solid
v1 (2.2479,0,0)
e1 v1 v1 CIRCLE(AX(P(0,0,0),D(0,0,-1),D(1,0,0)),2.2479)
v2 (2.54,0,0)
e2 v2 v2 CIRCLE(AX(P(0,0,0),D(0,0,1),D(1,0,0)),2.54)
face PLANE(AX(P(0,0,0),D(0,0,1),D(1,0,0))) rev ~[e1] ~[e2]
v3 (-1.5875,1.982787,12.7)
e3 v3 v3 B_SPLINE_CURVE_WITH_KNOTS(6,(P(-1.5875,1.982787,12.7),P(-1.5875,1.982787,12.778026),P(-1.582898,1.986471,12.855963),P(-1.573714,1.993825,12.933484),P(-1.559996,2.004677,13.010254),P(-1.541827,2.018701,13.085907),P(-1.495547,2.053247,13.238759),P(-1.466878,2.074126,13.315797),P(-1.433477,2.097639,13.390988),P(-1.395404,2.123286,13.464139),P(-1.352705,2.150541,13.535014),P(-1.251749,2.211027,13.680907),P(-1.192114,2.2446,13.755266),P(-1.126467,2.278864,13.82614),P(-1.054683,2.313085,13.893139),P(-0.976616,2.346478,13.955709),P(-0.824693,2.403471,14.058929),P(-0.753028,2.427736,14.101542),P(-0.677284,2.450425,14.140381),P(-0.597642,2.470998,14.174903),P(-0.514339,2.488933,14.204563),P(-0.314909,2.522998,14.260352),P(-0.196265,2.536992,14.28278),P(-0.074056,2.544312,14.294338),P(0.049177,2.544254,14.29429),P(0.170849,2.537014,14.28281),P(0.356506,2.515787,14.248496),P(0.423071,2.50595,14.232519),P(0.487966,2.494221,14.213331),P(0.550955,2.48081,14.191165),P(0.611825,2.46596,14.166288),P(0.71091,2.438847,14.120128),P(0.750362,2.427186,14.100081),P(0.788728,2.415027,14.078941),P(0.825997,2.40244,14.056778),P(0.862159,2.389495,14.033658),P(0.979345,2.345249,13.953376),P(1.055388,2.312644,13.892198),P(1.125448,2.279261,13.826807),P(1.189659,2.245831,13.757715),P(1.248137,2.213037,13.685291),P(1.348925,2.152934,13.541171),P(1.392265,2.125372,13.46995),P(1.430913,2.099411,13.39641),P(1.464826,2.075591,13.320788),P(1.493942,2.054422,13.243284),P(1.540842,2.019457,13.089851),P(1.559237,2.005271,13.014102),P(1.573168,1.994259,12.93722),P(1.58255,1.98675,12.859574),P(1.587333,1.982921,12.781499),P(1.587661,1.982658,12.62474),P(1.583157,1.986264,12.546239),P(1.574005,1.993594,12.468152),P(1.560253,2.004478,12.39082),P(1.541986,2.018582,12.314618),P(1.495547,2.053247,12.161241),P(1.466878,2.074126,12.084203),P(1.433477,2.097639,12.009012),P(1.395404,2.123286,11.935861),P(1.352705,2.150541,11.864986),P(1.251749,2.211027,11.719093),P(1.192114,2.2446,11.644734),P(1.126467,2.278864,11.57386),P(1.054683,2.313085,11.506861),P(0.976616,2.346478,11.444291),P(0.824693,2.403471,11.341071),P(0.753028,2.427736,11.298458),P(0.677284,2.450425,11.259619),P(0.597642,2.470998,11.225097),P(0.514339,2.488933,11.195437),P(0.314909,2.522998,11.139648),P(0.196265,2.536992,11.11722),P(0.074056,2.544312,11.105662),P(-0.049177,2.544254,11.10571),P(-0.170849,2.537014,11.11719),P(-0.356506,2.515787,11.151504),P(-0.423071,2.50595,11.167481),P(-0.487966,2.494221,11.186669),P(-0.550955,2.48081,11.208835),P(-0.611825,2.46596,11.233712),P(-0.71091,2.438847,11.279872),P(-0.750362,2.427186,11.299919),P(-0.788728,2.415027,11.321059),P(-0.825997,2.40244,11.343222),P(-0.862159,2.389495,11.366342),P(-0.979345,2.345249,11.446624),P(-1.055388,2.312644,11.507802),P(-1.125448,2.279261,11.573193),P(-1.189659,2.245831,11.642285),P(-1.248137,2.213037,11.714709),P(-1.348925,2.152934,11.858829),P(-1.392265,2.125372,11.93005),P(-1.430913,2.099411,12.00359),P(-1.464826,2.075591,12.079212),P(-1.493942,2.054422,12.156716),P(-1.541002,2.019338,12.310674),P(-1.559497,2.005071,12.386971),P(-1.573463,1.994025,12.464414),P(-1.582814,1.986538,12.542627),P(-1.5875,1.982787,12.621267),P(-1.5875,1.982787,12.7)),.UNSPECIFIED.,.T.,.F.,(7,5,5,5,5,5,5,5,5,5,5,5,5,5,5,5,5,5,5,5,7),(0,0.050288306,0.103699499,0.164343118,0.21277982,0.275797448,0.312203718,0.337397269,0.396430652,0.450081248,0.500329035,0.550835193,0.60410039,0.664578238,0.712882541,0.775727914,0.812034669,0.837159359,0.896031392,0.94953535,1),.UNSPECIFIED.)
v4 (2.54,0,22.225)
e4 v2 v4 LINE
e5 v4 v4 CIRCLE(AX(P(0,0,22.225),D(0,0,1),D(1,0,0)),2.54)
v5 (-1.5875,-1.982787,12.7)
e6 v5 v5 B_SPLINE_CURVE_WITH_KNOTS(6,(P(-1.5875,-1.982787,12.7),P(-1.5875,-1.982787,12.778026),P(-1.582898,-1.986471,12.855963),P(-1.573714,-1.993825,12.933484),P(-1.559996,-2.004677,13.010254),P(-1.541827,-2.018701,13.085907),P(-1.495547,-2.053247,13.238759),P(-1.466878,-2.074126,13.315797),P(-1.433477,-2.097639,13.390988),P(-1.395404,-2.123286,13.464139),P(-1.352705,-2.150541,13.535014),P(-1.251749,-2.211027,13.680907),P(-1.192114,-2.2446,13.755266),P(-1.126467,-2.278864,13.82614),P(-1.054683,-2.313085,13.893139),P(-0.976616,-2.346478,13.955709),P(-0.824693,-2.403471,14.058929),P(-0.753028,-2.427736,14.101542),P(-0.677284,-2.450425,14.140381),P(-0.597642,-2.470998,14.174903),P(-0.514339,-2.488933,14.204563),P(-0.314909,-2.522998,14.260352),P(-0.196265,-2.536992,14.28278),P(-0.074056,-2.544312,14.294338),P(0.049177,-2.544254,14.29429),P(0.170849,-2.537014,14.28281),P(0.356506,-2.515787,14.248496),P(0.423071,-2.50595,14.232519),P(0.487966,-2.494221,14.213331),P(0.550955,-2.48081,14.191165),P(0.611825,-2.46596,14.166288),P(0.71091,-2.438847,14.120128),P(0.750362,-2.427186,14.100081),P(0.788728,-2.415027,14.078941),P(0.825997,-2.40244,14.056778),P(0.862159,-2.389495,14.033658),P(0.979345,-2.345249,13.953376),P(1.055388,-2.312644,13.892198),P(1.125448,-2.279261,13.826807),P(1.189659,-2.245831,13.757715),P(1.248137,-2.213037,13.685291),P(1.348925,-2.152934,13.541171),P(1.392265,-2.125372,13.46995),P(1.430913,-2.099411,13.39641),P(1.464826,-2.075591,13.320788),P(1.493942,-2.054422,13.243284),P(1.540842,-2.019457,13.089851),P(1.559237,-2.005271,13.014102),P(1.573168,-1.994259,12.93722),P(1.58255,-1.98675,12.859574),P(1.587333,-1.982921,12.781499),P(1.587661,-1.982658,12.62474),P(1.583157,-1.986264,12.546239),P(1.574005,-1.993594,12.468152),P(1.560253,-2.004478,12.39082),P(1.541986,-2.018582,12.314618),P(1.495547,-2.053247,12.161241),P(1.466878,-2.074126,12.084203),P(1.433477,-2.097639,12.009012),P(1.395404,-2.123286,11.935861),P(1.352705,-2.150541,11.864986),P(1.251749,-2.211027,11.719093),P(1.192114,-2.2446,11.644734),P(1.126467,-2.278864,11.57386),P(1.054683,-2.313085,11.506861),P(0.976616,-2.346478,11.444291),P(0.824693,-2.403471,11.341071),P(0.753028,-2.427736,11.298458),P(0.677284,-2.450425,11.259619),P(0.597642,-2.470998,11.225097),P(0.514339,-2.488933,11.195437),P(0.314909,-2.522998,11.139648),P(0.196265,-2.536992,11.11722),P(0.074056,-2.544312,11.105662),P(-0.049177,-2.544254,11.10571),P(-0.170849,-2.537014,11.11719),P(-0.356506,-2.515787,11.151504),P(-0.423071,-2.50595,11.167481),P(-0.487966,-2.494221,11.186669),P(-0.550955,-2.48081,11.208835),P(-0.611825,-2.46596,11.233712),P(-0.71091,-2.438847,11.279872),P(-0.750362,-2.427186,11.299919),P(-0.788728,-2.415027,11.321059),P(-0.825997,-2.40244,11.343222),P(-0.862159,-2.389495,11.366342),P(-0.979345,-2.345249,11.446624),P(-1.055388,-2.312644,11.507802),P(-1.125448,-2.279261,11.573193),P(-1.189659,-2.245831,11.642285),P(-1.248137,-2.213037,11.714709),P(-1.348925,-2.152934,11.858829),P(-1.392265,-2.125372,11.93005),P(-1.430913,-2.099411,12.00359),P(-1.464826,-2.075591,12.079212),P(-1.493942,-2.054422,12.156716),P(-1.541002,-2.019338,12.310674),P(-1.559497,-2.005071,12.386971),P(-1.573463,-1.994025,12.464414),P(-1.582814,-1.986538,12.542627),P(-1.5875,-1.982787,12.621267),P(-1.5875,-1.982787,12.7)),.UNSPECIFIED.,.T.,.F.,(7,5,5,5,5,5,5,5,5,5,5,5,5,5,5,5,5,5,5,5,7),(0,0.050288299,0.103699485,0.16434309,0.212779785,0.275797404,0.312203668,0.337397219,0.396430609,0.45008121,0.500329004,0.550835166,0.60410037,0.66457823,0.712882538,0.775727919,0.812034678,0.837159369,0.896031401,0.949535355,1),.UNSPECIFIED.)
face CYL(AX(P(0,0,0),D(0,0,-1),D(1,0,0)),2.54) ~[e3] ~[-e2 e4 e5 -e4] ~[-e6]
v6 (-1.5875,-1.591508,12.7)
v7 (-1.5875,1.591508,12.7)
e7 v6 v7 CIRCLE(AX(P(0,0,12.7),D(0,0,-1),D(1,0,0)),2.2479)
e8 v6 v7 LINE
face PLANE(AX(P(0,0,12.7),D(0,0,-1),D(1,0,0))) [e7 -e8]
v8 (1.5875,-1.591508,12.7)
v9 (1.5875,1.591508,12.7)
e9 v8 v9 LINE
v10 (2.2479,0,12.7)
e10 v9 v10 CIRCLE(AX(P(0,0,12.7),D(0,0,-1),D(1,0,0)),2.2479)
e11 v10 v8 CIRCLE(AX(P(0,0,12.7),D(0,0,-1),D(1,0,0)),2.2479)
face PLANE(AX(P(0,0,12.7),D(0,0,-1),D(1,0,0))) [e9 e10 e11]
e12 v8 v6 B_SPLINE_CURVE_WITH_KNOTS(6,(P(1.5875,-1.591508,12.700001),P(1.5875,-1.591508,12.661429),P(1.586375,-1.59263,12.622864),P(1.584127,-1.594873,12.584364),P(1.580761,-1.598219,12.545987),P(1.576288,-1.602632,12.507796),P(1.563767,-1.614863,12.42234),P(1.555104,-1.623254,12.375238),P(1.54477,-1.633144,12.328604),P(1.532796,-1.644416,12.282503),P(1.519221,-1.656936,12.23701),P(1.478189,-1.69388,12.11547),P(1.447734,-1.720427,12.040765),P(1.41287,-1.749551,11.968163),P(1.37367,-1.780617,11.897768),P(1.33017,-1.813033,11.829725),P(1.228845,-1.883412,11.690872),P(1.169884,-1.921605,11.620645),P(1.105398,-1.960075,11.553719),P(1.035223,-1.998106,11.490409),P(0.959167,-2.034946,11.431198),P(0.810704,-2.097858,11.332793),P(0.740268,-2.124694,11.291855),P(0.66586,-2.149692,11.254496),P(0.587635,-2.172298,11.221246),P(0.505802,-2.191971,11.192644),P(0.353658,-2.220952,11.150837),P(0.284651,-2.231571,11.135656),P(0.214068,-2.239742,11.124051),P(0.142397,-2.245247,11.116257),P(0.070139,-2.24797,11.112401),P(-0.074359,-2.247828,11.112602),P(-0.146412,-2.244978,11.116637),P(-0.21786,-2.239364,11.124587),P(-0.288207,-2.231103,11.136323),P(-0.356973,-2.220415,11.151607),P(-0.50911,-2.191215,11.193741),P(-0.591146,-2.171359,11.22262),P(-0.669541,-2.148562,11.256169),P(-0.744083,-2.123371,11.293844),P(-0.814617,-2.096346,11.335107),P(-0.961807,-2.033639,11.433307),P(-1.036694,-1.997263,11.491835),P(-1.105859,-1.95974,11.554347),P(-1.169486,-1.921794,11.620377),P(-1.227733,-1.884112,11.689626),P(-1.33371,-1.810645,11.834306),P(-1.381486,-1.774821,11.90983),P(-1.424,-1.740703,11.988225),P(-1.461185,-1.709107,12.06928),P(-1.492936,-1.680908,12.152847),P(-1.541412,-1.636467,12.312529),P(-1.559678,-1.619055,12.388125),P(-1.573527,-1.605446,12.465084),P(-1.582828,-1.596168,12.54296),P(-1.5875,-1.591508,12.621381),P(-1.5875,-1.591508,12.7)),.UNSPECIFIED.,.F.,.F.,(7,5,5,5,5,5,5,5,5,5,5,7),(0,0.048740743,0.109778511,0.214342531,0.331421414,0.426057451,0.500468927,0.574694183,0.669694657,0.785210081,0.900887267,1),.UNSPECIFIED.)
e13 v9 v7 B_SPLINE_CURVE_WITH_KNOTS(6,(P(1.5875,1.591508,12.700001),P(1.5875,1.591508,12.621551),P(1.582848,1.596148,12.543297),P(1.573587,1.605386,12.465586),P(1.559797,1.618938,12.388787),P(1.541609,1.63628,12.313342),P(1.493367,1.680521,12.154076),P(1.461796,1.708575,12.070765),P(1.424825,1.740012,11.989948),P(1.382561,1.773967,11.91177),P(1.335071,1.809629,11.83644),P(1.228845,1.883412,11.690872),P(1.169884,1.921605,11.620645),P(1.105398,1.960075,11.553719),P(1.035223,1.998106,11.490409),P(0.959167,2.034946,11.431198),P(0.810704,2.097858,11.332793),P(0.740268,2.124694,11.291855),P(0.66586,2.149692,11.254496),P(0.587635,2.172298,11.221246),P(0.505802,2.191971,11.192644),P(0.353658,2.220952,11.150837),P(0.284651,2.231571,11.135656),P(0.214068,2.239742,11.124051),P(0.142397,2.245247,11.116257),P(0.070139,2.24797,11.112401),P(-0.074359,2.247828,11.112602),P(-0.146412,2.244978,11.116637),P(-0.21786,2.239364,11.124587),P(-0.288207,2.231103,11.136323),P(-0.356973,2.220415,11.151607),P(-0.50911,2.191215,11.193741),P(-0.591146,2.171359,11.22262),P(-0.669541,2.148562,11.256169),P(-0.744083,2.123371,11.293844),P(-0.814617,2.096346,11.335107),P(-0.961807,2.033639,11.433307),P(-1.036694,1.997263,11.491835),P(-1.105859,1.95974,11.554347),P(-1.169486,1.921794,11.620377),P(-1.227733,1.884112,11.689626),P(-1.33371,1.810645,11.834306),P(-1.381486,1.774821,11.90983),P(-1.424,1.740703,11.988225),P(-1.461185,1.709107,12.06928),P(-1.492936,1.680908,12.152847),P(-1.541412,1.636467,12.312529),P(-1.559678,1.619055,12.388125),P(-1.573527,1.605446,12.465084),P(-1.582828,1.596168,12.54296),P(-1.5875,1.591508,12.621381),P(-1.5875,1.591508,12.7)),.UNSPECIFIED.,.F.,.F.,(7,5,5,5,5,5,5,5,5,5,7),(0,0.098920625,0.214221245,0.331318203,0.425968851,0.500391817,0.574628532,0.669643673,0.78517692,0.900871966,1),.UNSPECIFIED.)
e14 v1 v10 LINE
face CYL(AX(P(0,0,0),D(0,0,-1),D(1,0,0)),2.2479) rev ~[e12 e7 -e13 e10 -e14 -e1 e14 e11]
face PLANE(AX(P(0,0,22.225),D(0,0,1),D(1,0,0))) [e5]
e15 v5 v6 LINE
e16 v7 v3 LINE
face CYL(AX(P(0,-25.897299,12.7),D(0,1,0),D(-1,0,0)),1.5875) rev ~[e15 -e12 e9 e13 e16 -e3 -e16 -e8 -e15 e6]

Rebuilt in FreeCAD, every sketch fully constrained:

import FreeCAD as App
import Part
import Sketcher

V = App.Vector
Q = App.Units.Quantity

doc = App.newDocument("Part")
body = doc.addObject("PartDesign::Body", "Body")

# Sketch on XY plane
sketch1 = body.newObject("Sketcher::SketchObject", "Sketch")
sketch1.AttachmentSupport = (doc.getObject("XY_Plane"), [""])
sketch1.MapMode = "FlatFace"
sketch1.addGeometry(Part.Circle(V(0, 0, 0), V(0, 0, 1), 2.5), False)
sketch1.addConstraint(Sketcher.Constraint("Coincident", 0, 3, -1, 1))
sketch1.addConstraint(Sketcher.Constraint("Diameter", 0, Q("0.2 in")))
pad1 = body.newObject("PartDesign::Pad", "Pad")
pad1.Profile = sketch1
pad1.Length = Q("0.875 in")

# Sketch on XZ plane
sketch2 = body.newObject("Sketcher::SketchObject", "Sketch001")
sketch2.AttachmentSupport = (doc.getObject("XZ_Plane"), [""])
sketch2.MapMode = "FlatFace"
sketch2.AttachmentOffset = App.Placement(V(0, 0, 0.1 * 25.4), App.Rotation())
sketch2.addGeometry(Part.Circle(V(0, 12.7, 0), V(0, 0, 1), 1.6), False)
sketch2.addConstraint(Sketcher.Constraint("PointOnObject", 0, 3, -2))
sketch2.addConstraint(Sketcher.Constraint("Diameter", 0, Q("0.125 in")))
sketch2.addConstraint(Sketcher.Constraint("DistanceY", -1, 1, 0, 3, Q("0.5 in")))
doc.recompute()
hole = body.newObject("PartDesign::Hole", "Hole")
hole.Profile = sketch2
hole.ThreadType = "None"
hole.Diameter = Q("0.125 in")
hole.DepthType = "ThroughAll"

# Sketch on XY plane
sketch3 = body.newObject("Sketcher::SketchObject", "Sketch002")
sketch3.AttachmentSupport = (doc.getObject("XY_Plane"), [""])
sketch3.MapMode = "FlatFace"
sketch3.addGeometry(Part.Circle(V(0, 0, 0), V(0, 0, 1), 2.2), False)
sketch3.addConstraint(Sketcher.Constraint("Coincident", 0, 3, -1, 1))
sketch3.addConstraint(Sketcher.Constraint("Diameter", 0, Q("0.177 in")))
pocket1 = body.newObject("PartDesign::Pocket", "Pocket")
pocket1.Profile = sketch3
pocket1.Length = Q("0.5 in")
pocket1.Reversed = True

doc.recompute()
